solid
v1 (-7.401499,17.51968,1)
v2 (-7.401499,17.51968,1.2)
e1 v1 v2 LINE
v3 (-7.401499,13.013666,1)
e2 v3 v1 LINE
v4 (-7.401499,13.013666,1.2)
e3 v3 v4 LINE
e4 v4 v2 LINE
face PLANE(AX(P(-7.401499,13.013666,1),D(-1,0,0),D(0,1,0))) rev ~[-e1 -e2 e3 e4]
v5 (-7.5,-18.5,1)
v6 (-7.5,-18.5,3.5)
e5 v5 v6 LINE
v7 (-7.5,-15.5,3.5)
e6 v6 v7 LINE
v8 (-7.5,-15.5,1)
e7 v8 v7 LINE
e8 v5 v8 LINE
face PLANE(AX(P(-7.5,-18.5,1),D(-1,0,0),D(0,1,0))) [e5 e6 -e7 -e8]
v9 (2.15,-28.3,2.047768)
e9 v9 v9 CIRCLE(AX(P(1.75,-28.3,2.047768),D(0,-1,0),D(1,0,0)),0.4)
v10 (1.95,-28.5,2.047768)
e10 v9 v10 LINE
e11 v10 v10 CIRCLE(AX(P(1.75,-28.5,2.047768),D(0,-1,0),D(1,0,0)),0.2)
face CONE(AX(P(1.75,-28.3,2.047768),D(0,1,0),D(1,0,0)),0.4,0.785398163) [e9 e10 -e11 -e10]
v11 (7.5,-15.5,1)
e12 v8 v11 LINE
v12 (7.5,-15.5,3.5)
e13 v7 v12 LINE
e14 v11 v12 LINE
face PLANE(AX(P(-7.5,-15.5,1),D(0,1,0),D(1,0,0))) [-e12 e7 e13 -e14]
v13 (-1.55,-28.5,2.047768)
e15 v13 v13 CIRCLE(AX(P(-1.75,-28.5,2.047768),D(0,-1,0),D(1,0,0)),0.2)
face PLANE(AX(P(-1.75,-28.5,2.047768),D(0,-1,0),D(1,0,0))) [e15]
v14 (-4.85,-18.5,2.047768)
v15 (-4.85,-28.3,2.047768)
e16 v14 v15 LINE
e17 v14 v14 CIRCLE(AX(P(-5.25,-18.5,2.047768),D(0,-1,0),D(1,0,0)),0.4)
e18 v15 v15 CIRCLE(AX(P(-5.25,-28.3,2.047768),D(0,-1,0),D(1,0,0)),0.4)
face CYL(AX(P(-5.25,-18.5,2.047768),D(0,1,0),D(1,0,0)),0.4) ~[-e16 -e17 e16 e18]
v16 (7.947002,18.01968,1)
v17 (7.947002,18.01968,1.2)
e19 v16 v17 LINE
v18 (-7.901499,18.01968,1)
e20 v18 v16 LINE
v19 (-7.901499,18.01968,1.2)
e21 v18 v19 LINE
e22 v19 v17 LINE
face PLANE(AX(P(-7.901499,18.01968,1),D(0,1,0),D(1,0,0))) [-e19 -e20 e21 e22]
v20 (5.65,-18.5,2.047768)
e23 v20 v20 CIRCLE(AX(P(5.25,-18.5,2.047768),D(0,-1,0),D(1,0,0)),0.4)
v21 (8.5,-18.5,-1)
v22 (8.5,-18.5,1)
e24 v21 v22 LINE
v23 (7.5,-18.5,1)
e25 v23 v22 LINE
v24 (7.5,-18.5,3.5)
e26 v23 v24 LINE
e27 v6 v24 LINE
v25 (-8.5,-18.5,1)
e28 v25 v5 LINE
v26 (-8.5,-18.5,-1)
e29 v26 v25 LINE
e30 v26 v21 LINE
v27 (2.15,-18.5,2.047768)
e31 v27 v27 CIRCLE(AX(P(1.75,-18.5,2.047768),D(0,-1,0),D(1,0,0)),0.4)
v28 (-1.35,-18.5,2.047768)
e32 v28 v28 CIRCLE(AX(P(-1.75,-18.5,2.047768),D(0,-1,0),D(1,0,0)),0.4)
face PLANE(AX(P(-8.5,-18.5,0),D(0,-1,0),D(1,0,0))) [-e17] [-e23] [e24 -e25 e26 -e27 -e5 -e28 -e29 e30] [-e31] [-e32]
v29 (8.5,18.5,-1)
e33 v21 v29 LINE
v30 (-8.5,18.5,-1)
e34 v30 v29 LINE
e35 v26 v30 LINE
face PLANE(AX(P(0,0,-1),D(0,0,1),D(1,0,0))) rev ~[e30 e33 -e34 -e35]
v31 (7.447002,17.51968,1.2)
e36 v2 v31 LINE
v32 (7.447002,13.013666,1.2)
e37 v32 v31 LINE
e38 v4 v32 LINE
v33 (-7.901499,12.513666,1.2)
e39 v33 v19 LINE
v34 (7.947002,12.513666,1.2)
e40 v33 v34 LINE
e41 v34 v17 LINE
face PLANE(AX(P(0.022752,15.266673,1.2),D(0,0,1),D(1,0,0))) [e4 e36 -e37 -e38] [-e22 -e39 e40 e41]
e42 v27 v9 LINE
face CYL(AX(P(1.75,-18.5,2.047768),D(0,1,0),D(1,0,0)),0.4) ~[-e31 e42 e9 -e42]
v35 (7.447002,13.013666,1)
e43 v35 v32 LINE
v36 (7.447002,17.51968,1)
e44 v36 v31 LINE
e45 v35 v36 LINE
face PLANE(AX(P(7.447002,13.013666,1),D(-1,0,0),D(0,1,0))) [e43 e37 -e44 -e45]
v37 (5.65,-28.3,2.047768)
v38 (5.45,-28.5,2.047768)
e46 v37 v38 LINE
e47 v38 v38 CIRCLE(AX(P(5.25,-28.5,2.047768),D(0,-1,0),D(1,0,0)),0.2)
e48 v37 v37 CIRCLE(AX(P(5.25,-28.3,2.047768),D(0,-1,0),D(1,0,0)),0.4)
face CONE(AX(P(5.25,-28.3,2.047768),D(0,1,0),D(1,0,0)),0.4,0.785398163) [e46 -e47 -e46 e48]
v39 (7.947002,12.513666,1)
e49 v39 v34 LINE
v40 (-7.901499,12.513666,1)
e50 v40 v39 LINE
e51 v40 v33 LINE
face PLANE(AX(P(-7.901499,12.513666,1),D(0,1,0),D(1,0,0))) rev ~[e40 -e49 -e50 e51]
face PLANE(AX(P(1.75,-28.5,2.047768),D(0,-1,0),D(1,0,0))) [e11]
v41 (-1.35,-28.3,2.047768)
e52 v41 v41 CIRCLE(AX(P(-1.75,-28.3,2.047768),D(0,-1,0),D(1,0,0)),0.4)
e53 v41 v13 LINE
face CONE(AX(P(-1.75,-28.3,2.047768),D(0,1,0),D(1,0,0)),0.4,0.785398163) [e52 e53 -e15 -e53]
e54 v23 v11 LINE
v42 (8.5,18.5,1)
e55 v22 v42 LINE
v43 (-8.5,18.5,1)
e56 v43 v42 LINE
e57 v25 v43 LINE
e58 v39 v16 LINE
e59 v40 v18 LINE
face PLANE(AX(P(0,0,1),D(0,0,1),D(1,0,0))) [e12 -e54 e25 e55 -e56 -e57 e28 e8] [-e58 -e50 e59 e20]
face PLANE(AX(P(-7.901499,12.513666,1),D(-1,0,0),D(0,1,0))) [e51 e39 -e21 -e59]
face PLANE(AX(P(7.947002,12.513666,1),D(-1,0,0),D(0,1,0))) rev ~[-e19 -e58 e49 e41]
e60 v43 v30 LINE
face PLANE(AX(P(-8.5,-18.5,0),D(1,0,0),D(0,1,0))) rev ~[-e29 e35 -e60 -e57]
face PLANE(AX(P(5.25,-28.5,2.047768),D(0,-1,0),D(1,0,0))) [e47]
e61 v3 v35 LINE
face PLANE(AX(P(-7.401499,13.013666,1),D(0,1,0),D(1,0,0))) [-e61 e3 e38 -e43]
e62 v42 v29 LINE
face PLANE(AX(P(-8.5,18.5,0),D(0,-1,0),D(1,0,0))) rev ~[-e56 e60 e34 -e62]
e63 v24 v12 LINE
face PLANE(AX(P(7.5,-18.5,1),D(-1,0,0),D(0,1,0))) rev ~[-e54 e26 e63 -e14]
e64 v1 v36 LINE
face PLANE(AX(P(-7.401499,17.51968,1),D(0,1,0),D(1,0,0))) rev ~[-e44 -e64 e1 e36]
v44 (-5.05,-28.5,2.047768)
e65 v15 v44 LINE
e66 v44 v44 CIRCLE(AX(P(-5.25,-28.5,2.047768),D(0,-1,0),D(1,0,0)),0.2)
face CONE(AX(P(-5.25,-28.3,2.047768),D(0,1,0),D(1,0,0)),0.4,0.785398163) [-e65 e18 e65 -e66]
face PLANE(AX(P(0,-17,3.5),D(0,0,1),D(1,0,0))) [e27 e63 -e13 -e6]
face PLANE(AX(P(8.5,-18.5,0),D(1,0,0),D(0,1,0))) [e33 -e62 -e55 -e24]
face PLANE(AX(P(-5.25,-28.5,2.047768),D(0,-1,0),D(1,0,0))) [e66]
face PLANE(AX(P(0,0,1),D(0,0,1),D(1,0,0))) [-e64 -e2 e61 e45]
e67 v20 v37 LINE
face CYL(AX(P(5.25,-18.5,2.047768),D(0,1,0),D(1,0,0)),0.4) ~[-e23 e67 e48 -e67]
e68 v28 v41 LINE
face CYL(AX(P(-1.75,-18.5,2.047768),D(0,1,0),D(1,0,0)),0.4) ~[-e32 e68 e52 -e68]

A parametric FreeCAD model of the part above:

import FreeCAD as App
import Part
import Sketcher

V = App.Vector
Q = App.Units.Quantity


def edges_at(feature, points):
    """Names of the edges that pass closest to the given points."""
    edges = feature.Shape.Edges
    near = lambda p: min(range(len(edges)), key=lambda i: edges[i].distToShape(Part.Vertex(*p))[0])
    return sorted({f"Edge{near(p) + 1}" for p in points})

doc = App.newDocument("Part")
body = doc.addObject("PartDesign::Body", "Body")

sketch1 = body.newObject("Sketcher::SketchObject", "Sketch")
sketch1.AttachmentSupport = (doc.getObject("XY_Plane"), [""])
sketch1.MapMode = "FlatFace"
sketch1.addGeometry([
    Part.LineSegment(V(-8, 18, 0), V(-8, -18, 0)),
    Part.LineSegment(V(-8, -18, 0), V(8, -18, 0)),
    Part.LineSegment(V(8, -18, 0), V(8, 18, 0)),
    Part.LineSegment(V(8, 18, 0), V(-8, 18, 0)),
], False)
sketch1.addConstraint([
    Sketcher.Constraint("Coincident", 0, 2, 1, 1),
    Sketcher.Constraint("Coincident", 1, 2, 2, 1),
    Sketcher.Constraint("Coincident", 2, 2, 3, 1),
    Sketcher.Constraint("Coincident", 3, 2, 0, 1),
    Sketcher.Constraint("Vertical", 0),
    Sketcher.Constraint("Horizontal", 1),
    Sketcher.Constraint("Vertical", 2),
    Sketcher.Constraint("Horizontal", 3),
    Sketcher.Constraint("Symmetric", 0, 2, 2, 2, -1, 1),
    Sketcher.Constraint("DistanceX", 1, 1, 1, 2, Q("17 mm")),
    Sketcher.Constraint("DistanceY", 0, 2, 0, 1, Q("37 mm")),
])
pad1 = body.newObject("PartDesign::Pad", "Pad")
pad1.Profile = sketch1
pad1.Length = 2
pad1.Midplane = True

sketch2 = body.newObject("Sketcher::SketchObject", "Sketch001")
sketch2.AttachmentSupport = (doc.getObject("XY_Plane"), [""])
sketch2.MapMode = "FlatFace"
sketch2.AttachmentOffset = App.Placement(V(0, 0, 1), App.Rotation())
sketch2.addGeometry([
    Part.LineSegment(V(-7.5, -15.5, 0), V(-7.5, -18.5, 0)),
    Part.LineSegment(V(-7.5, -18.5, 0), V(7.5, -18.5, 0)),
    Part.LineSegment(V(7.5, -18.5, 0), V(7.5, -15.5, 0)),
    Part.LineSegment(V(7.5, -15.5, 0), V(-7.5, -15.5, 0)),
], False)
sketch2.addConstraint([
    Sketcher.Constraint("Coincident", 0, 2, 1, 1),
    Sketcher.Constraint("Coincident", 1, 2, 2, 1),
    Sketcher.Constraint("Coincident", 2, 2, 3, 1),
    Sketcher.Constraint("Coincident", 3, 2, 0, 1),
    Sketcher.Constraint("Vertical", 0),
    Sketcher.Constraint("Horizontal", 1),
    Sketcher.Constraint("Vertical", 2),
    Sketcher.Constraint("Horizontal", 3),
    Sketcher.Constraint("DistanceX", 1, 1, 1, 2, Q("15 mm")),
    Sketcher.Constraint("DistanceY", 0, 2, 0, 1, Q("3 mm")),
    Sketcher.Constraint("DistanceX", 0, 2, -1, 1, Q("7.5 mm")),
    Sketcher.Constraint("DistanceY", 0, 2, -1, 1, Q("18.5 mm")),
])
pad2 = body.newObject("PartDesign::Pad", "Pad001")
pad2.Profile = sketch2
pad2.Length = 2.5

sketch3 = body.newObject("Sketcher::SketchObject", "Sketch002")
sketch3.AttachmentSupport = (doc.getObject("XZ_Plane"), [""])
sketch3.MapMode = "FlatFace"
sketch3.AttachmentOffset = App.Placement(V(0, 0, 18.5), App.Rotation())
sketch3.addGeometry([
    Part.Circle(V(-5.25, 2.05, 0), V(0, 0, 1), 0.4),
    Part.Circle(V(-1.75, 2.05, 0), V(0, 0, 1), 0.4),
    Part.Circle(V(1.75, 2.05, 0), V(0, 0, 1), 0.4),
    Part.Circle(V(5.25, 2.05, 0), V(0, 0, 1), 0.4),
], False)
sketch3.addConstraint([
    Sketcher.Constraint("Equal", 0, 1),
    Sketcher.Constraint("Equal", 1, 2),
    Sketcher.Constraint("Equal", 2, 3),
    Sketcher.Constraint("Symmetric", 1, 3, 2, 3, -2),
    Sketcher.Constraint("Symmetric", 0, 3, 3, 3, -2),
    Sketcher.Constraint("Horizontal", 0, 3, 1, 3),
    Sketcher.Constraint("Diameter", 0, Q("0.8 mm")),
    Sketcher.Constraint("DistanceX", 0, 3, 2, 3, Q("7 mm")),
    Sketcher.Constraint("DistanceX", 0, 3, 1, 3, Q("3.5 mm")),
    Sketcher.Constraint("DistanceY", -1, 1, 0, 3, Q("2.047768 mm")),
])
pad3 = body.newObject("PartDesign::Pad", "Pad002")
pad3.Profile = sketch3
pad3.Length = 10
doc.recompute()

chamfer = body.newObject("PartDesign::Chamfer", "Chamfer")
chamfer.Base = (pad3, edges_at(pad3, [
    (-5.65, -28.5, 2.048),
    (-2.15, -28.5, 2.048),
    (1.35, -28.5, 2.048),
    (4.85, -28.5, 2.048),
]))
chamfer.Size = 0.2

sketch4 = body.newObject("Sketcher::SketchObject", "Sketch003")
sketch4.AttachmentSupport = (doc.getObject("XY_Plane"), [""])
sketch4.MapMode = "FlatFace"
sketch4.AttachmentOffset = App.Placement(V(0, 0, 1), App.Rotation())
sketch4.addGeometry([
    Part.LineSegment(V(-7.9, 18, 0), V(-7.9, 12.5, 0)),
    Part.LineSegment(V(-7.9, 12.5, 0), V(7.9, 12.5, 0)),
    Part.LineSegment(V(7.9, 12.5, 0), V(7.9, 18, 0)),
    Part.LineSegment(V(7.9, 18, 0), V(-7.9, 18, 0)),
    Part.LineSegment(V(7.4, 13, 0), V(-7.4, 13, 0)),
    Part.LineSegment(V(-7.4, 13, 0), V(-7.4, 17.5, 0)),
    Part.LineSegment(V(-7.4, 17.5, 0), V(7.4, 17.5, 0)),
    Part.LineSegment(V(7.4, 17.5, 0), V(7.4, 13, 0)),
], False)
sketch4.addConstraint([
    Sketcher.Constraint("Coincident", 0, 2, 1, 1),
    Sketcher.Constraint("Coincident", 1, 2, 2, 1),
    Sketcher.Constraint("Coincident", 2, 2, 3, 1),
    Sketcher.Constraint("Coincident", 3, 2, 0, 1),
    Sketcher.Constraint("Coincident", 4, 2, 5, 1),
    Sketcher.Constraint("Coincident", 5, 2, 6, 1),
    Sketcher.Constraint("Coincident", 6, 2, 7, 1),
    Sketcher.Constraint("Coincident", 7, 2, 4, 1),
    Sketcher.Constraint("Vertical", 0),
    Sketcher.Constraint("Horizontal", 1),
    Sketcher.Constraint("Vertical", 2),
    Sketcher.Constraint("Horizontal", 3),
    Sketcher.Constraint("Horizontal", 4),
    Sketcher.Constraint("Vertical", 5),
    Sketcher.Constraint("Horizontal", 6),
    Sketcher.Constraint("Vertical", 7),
    Sketcher.Constraint("DistanceX", 0, 2, 4, 2, Q("0.5 mm")),
    Sketcher.Constraint("DistanceY", 0, 2, 4, 2, Q("0.5 mm")),
    Sketcher.Constraint("DistanceY", 5, 2, 3, 2, Q("0.5 mm")),
    Sketcher.Constraint("DistanceX", 6, 2, 2, 2, Q("0.5 mm")),
    Sketcher.Constraint("DistanceX", 1, 1, 1, 2, Q("15.8485 mm")),
    Sketcher.Constraint("DistanceX", -1, 1, 1, 2, Q("7.947002 mm")),
    Sketcher.Constraint("DistanceY", 0, 2, 0, 1, Q("5.506014 mm")),
    Sketcher.Constraint("DistanceY", -1, 1, 2, 2, Q("18.01968 mm")),
])
pad4 = body.newObject("PartDesign::Pad", "Pad003")
pad4.Profile = sketch4
pad4.Length = 0.2

doc.recompute()
